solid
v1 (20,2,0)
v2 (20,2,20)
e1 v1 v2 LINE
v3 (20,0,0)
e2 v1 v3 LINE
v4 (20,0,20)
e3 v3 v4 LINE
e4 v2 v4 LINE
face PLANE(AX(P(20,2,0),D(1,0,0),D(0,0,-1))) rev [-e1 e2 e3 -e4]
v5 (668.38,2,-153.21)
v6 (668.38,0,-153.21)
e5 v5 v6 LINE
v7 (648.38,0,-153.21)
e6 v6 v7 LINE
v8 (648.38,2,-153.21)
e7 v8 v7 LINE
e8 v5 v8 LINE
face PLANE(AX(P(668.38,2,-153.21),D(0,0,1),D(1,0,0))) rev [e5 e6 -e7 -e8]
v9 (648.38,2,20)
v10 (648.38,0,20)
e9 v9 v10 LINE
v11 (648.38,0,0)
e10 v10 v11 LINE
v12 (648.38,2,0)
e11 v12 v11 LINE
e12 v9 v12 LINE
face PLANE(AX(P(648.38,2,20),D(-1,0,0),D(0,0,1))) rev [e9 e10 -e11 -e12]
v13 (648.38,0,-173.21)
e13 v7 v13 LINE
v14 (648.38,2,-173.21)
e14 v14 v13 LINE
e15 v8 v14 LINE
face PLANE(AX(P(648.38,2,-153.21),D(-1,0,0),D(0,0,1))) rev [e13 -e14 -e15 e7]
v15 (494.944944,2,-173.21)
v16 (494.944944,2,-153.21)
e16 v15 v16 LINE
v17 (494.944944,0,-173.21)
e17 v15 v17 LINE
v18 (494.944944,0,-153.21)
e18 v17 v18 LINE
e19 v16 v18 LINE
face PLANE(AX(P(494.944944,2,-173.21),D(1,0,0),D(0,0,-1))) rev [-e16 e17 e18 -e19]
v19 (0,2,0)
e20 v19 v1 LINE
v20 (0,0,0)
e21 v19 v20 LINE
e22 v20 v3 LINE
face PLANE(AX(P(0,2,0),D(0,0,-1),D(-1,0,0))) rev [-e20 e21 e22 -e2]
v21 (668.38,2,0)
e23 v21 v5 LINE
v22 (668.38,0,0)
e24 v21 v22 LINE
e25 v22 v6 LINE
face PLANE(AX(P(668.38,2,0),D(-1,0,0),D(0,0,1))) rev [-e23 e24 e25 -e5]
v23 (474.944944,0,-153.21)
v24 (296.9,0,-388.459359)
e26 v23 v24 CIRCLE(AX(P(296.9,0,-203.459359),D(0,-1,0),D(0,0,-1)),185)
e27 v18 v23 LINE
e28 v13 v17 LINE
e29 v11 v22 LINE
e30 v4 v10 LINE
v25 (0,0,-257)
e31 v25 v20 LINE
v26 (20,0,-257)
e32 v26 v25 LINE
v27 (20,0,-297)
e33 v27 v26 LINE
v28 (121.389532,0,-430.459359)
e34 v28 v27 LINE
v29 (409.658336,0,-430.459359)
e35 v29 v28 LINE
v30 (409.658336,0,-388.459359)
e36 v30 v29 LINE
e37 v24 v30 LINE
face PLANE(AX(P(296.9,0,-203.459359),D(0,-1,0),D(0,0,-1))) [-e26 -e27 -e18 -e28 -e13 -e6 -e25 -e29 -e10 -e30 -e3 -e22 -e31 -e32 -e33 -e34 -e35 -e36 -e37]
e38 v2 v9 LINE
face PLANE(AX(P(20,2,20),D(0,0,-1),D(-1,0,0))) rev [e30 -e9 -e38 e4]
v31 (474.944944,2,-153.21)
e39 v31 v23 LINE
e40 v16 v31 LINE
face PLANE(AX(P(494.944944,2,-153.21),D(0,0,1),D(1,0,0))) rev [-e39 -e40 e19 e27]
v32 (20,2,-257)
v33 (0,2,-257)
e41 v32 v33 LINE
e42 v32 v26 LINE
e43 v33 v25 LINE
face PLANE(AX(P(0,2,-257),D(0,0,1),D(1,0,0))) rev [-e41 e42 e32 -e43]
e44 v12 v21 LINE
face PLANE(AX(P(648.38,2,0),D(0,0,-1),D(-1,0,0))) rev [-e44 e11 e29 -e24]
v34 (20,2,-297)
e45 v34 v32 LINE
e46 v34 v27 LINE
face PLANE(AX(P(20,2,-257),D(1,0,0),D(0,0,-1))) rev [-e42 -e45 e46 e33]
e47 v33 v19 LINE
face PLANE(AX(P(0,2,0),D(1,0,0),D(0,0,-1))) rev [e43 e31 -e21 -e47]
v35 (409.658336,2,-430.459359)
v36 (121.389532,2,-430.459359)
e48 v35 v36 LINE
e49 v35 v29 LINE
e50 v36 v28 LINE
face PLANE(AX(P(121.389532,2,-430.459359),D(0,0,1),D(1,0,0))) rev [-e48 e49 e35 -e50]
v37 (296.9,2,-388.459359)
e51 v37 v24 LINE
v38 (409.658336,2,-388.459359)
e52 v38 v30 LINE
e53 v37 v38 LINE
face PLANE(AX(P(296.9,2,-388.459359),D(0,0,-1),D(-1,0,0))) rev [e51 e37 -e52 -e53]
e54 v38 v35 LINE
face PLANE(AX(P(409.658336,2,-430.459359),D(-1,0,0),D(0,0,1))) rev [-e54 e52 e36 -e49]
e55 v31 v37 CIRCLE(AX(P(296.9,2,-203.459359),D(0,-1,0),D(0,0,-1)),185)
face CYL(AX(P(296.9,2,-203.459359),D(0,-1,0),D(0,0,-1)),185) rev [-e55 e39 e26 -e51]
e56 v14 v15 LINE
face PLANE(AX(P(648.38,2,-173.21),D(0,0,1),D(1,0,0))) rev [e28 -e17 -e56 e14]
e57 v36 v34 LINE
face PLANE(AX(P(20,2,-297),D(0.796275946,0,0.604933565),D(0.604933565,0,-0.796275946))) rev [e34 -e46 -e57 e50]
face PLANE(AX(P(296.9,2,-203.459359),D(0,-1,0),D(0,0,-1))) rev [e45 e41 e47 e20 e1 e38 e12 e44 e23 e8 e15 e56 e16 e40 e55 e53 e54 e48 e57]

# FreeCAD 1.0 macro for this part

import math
import FreeCAD as App
import Part
import Sketcher

doc = App.newDocument("Part")
body = doc.addObject("PartDesign::Body", "Body")

# Sketch on XZ plane
sketch1 = body.newObject("Sketcher::SketchObject", "Sketch")
sketch1.AttachmentSupport = (doc.getObject("XZ_Plane"), [""])
sketch1.MapMode = "FlatFace"
sketch1.addGeometry(Part.LineSegment(App.Vector(0, 0, 0), App.Vector(20, 0, 0)), False)
sketch1.addGeometry(Part.LineSegment(App.Vector(20, 0, 0), App.Vector(20, 20, 0)), False)
sketch1.addGeometry(Part.LineSegment(App.Vector(20, 20, 0), App.Vector(648.38, 20, 0)), False)
sketch1.addGeometry(Part.LineSegment(App.Vector(648.38, 20, 0), App.Vector(648.38, 0, 0)), False)
sketch1.addGeometry(Part.LineSegment(App.Vector(648.38, 0, 0), App.Vector(668.38, 0, 0)), False)
sketch1.addGeometry(Part.LineSegment(App.Vector(668.38, 0, 0), App.Vector(668.38, -153.21, 0)), False)
sketch1.addGeometry(Part.LineSegment(App.Vector(668.38, -153.21, 0), App.Vector(648.38, -153.21, 0)), False)
sketch1.addGeometry(Part.LineSegment(App.Vector(648.38, -153.21, 0), App.Vector(648.38, -173.21, 0)), False)
sketch1.addGeometry(Part.LineSegment(App.Vector(648.38, -173.21, 0), App.Vector(494.944944, -173.21, 0)), False)
sketch1.addGeometry(Part.LineSegment(App.Vector(494.944944, -173.21, 0), App.Vector(494.944944, -153.21, 0)), False)
sketch1.addGeometry(Part.LineSegment(App.Vector(494.944944, -153.21, 0), App.Vector(474.944944, -153.21, 0)), False)
sketch1.addGeometry(Part.ArcOfCircle(Part.Circle(App.Vector(296.9, -203.459359, 0), App.Vector(0, 0, 1), 185), math.radians(15.760579), math.radians(270)), False)
sketch1.addGeometry(Part.LineSegment(App.Vector(296.9, -388.459359, 0), App.Vector(409.658336, -388.459359, 0)), False)
sketch1.addGeometry(Part.LineSegment(App.Vector(409.658336, -388.459359, 0), App.Vector(409.658336, -430.459359, 0)), False)
sketch1.addGeometry(Part.LineSegment(App.Vector(409.658336, -430.459359, 0), App.Vector(121.389532, -430.459359, 0)), False)
sketch1.addGeometry(Part.LineSegment(App.Vector(121.389532, -430.459359, 0), App.Vector(20, -297, 0)), False)
sketch1.addGeometry(Part.LineSegment(App.Vector(20, -297, 0), App.Vector(20, -257, 0)), False)
sketch1.addGeometry(Part.LineSegment(App.Vector(20, -257, 0), App.Vector(0, -257, 0)), False)
sketch1.addGeometry(Part.LineSegment(App.Vector(0, -257, 0), App.Vector(0, 0, 0)), False)
sketch1.addConstraint(Sketcher.Constraint("Coincident", 0, 2, 1, 1))
sketch1.addConstraint(Sketcher.Constraint("Coincident", 1, 2, 2, 1))
sketch1.addConstraint(Sketcher.Constraint("Coincident", 2, 2, 3, 1))
sketch1.addConstraint(Sketcher.Constraint("Coincident", 3, 2, 4, 1))
sketch1.addConstraint(Sketcher.Constraint("Coincident", 4, 2, 5, 1))
sketch1.addConstraint(Sketcher.Constraint("Coincident", 5, 2, 6, 1))
sketch1.addConstraint(Sketcher.Constraint("Coincident", 6, 2, 7, 1))
sketch1.addConstraint(Sketcher.Constraint("Coincident", 7, 2, 8, 1))
sketch1.addConstraint(Sketcher.Constraint("Coincident", 8, 2, 9, 1))
sketch1.addConstraint(Sketcher.Constraint("Coincident", 9, 2, 10, 1))
sketch1.addConstraint(Sketcher.Constraint("Coincident", 10, 2, 11, 1))
sketch1.addConstraint(Sketcher.Constraint("Tangent", 11, 2, 12, 1))
sketch1.addConstraint(Sketcher.Constraint("Coincident", 12, 2, 13, 1))
sketch1.addConstraint(Sketcher.Constraint("Coincident", 13, 2, 14, 1))
sketch1.addConstraint(Sketcher.Constraint("Coincident", 14, 2, 15, 1))
sketch1.addConstraint(Sketcher.Constraint("Coincident", 15, 2, 16, 1))
sketch1.addConstraint(Sketcher.Constraint("Coincident", 16, 2, 17, 1))
sketch1.addConstraint(Sketcher.Constraint("Coincident", 17, 2, 18, 1))
sketch1.addConstraint(Sketcher.Constraint("Coincident", 18, 2, 0, 1))
sketch1.addConstraint(Sketcher.Constraint("Horizontal", 0))
sketch1.addConstraint(Sketcher.Constraint("Vertical", 1))
sketch1.addConstraint(Sketcher.Constraint("Horizontal", 2))
sketch1.addConstraint(Sketcher.Constraint("Vertical", 3))
sketch1.addConstraint(Sketcher.Constraint("Horizontal", 4))
sketch1.addConstraint(Sketcher.Constraint("Vertical", 5))
sketch1.addConstraint(Sketcher.Constraint("Horizontal", 6))
sketch1.addConstraint(Sketcher.Constraint("Vertical", 7))
sketch1.addConstraint(Sketcher.Constraint("Horizontal", 8))
sketch1.addConstraint(Sketcher.Constraint("Vertical", 9))
sketch1.addConstraint(Sketcher.Constraint("Horizontal", 10))
sketch1.addConstraint(Sketcher.Constraint("Horizontal", 12))
sketch1.addConstraint(Sketcher.Constraint("Vertical", 13))
sketch1.addConstraint(Sketcher.Constraint("Horizontal", 14))
sketch1.addConstraint(Sketcher.Constraint("Vertical", 16))
sketch1.addConstraint(Sketcher.Constraint("Horizontal", 17))
sketch1.addConstraint(Sketcher.Constraint("Vertical", 18))
sketch1.addConstraint(Sketcher.Constraint("Coincident", 18, 2, -1, 1))
sketch1.addConstraint(Sketcher.Constraint("PointOnObject", 3, 2, -1))
sketch1.addConstraint(Sketcher.Constraint("Horizontal", 6, 2, 9, 2))
sketch1.addConstraint(Sketcher.Constraint("Vertical", 3, 2, 6, 2))
sketch1.addConstraint(Sketcher.Constraint("Vertical", 1, 2, 15, 2))
sketch1.addConstraint(Sketcher.Constraint("Equal", 0, 4))
sketch1.addConstraint(Sketcher.Constraint("Equal", 6, 10))
sketch1.addConstraint(Sketcher.Constraint("Equal", 17, 1))
sketch1.addConstraint(Sketcher.Constraint("Equal", 3, 7))
sketch1.addConstraint(Sketcher.Constraint("Radius", 11, 185.0))
sketch1.addConstraint(Sketcher.Constraint("DistanceX", 0, 1, 0, 2, 20.0))
sketch1.addConstraint(Sketcher.Constraint("DistanceY", 13, 2, 13, 1, 42.0))
sketch1.addConstraint(Sketcher.Constraint("DistanceY", 16, 1, 16, 2, 40.0))
sketch1.addConstraint(Sketcher.Constraint("DistanceY", 18, 1, 18, 2, 257.0))
sketch1.addConstraint(Sketcher.Constraint("DistanceX", 2, 1, 2, 2, 628.38))
sketch1.addConstraint(Sketcher.Constraint("DistanceY", 5, 2, 5, 1, 153.21))
sketch1.addConstraint(Sketcher.Constraint("DistanceX", -1, 1, 11, 3, 296.9))
sketch1.addConstraint(Sketcher.Constraint("Distance", 15, 167.604408))
sketch1.addConstraint(Sketcher.Constraint("DistanceX", 8, 2, 8, 1, 153.435056))
sketch1.addConstraint(Sketcher.Constraint("DistanceX", 12, 1, 12, 2, 112.758336))
pad1 = body.newObject("PartDesign::Pad", "Pad")
pad1.Profile = sketch1
pad1.Length = 2
pad1.Reversed = True

doc.recompute()
